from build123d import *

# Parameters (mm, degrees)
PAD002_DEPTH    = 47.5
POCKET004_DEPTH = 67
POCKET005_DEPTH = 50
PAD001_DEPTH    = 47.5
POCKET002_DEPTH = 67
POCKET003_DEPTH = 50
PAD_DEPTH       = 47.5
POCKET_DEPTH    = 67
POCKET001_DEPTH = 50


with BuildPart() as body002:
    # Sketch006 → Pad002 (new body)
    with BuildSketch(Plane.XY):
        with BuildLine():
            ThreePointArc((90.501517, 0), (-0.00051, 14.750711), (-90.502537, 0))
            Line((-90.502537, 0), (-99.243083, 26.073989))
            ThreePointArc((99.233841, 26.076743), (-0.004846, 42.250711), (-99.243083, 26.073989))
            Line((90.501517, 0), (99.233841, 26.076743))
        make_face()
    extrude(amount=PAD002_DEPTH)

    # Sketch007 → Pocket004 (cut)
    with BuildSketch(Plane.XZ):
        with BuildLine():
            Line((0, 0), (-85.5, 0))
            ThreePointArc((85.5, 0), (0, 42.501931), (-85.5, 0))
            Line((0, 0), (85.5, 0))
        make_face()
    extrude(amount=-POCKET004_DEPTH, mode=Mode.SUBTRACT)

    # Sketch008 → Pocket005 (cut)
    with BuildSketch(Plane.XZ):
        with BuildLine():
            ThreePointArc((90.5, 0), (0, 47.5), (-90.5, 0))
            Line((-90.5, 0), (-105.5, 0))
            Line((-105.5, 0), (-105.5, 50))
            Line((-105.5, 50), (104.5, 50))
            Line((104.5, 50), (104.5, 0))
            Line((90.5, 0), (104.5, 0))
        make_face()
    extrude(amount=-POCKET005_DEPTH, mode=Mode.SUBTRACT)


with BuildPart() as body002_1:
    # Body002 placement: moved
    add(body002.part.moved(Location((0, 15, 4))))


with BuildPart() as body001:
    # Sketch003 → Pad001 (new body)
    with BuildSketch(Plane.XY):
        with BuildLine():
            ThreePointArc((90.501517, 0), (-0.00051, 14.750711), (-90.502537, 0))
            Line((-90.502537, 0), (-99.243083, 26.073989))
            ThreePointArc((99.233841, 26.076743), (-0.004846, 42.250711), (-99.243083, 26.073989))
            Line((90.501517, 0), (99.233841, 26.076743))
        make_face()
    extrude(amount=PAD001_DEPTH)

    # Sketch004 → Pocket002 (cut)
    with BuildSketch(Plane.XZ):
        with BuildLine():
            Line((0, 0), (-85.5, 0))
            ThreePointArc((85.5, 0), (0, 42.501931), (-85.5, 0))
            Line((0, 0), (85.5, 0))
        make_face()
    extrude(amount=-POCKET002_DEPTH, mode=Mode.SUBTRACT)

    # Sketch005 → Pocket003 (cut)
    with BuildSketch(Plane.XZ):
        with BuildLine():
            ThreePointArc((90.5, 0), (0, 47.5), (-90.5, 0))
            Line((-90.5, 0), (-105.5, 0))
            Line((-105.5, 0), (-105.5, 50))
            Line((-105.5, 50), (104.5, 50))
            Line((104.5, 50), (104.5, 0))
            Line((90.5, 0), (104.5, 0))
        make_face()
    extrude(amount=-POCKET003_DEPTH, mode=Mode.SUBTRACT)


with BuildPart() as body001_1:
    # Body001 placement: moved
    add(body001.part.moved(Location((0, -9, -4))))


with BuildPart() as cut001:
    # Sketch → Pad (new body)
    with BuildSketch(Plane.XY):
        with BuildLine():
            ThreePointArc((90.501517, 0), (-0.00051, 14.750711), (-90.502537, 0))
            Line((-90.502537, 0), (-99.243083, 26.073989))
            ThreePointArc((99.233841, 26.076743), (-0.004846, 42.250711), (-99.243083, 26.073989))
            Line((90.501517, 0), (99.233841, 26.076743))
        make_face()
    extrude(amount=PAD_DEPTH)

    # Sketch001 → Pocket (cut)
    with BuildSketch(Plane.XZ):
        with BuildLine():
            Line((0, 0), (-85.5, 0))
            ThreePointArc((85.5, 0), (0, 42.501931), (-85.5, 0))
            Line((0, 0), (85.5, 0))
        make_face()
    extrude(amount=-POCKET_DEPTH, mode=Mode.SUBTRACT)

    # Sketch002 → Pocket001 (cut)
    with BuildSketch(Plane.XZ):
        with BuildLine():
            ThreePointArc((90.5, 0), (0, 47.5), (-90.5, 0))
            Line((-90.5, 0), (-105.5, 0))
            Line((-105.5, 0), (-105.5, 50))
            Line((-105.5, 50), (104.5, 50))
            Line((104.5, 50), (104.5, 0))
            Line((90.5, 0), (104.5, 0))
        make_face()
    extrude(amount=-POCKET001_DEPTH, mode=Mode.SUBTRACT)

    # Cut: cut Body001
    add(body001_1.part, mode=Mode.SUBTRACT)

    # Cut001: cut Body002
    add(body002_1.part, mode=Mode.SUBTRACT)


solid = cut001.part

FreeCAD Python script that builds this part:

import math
import FreeCAD as App
import Part
import Sketcher

doc = App.newDocument("Part")
body = doc.addObject("PartDesign::Body", "Body")

# Sketch on XY plane
sketch1 = doc.addObject("Sketcher::SketchObject", "Sketch")
body.addObject(sketch1)
sketch1.AttachmentSupport = (doc.XY_Plane, [""])
sketch1.MapMode = "FlatFace"
sketch1.addGeometry([
    Part.ArcOfCircle(Part.Circle(App.Vector(0, -270, 0), App.Vector(0, 0, 1), 285), math.radians(71), math.radians(109)),
    Part.LineSegment(App.Vector(91, 0, 0), App.Vector(99, 26, 0)),
    Part.ArcOfCircle(Part.Circle(App.Vector(0, -270, 0), App.Vector(0, 0, 1), 313), math.radians(71), math.radians(109)),
    Part.LineSegment(App.Vector(-99, 26, 0), App.Vector(-91, 0, 0)),
], False)
sketch1.addConstraint([
    Sketcher.Constraint("Coincident", 0, 1, 1, 1),
    Sketcher.Constraint("Coincident", 1, 2, 2, 1),
    Sketcher.Constraint("Coincident", 2, 2, 3, 1),
    Sketcher.Constraint("Coincident", 3, 2, 0, 2),
    Sketcher.Constraint("Coincident", 2, 3, 0, 3),
    Sketcher.Constraint("PointOnObject", 0, 1, -1),
    Sketcher.Constraint("PointOnObject", 3, 2, -1),
    Sketcher.Constraint("Radius", 2, 312.51),
    Sketcher.Constraint("Distance", 1, 27.5),
    Sketcher.Constraint("DistanceX", 2, 2, 0, 1, 189.7446),
    Sketcher.Constraint("DistanceX", 0, 3, -1, 1, 0.00051),
    Sketcher.Constraint("DistanceY", 0, 3, -1, 1, 270.259292),
    Sketcher.Constraint("DistanceX", -1, 1, 1, 2, 99.233841),
])
pad1 = doc.addObject("PartDesign::Pad", "Pad")
body.addObject(pad1)
pad1.Profile = sketch1
pad1.Length = 47.5

# Sketch on XZ plane
sketch2 = doc.addObject("Sketcher::SketchObject", "Sketch001")
body.addObject(sketch2)
sketch2.AttachmentSupport = (doc.XZ_Plane, [""])
sketch2.MapMode = "FlatFace"
sketch2.addGeometry([
    Part.LineSegment(App.Vector(-86, 0, 0), App.Vector(86, 0, 0)),
    Part.ArcOfCircle(Part.Circle(App.Vector(0, -65, 0), App.Vector(0, 0, 1), 107), math.radians(37), math.radians(143)),
], False)
sketch2.addConstraint([
    Sketcher.Constraint("Coincident", 0, 1, 1, 2),
    Sketcher.Constraint("Coincident", 1, 1, 0, 2),
    Sketcher.Constraint("Horizontal", 0),
    Sketcher.Constraint("Symmetric", 0, 1, 1, 1, -1, 1),
    Sketcher.Constraint("DistanceX", 0, 1, 0, 2, 171.0),
    Sketcher.Constraint("Radius", 1, 107.249999),
])
pocket1 = doc.addObject("PartDesign::Pocket", "Pocket")
body.addObject(pocket1)
pocket1.Profile = sketch2
pocket1.Length = 67

# Sketch on XZ plane
sketch3 = doc.addObject("Sketcher::SketchObject", "Sketch002")
body.addObject(sketch3)
sketch3.AttachmentSupport = (doc.XZ_Plane, [""])
sketch3.MapMode = "FlatFace"
sketch3.addGeometry([
    Part.ArcOfCircle(Part.Circle(App.Vector(0, -62, 0), App.Vector(0, 0, 1), 110), math.radians(35), math.radians(145)),  # 0
    Part.LineSegment(App.Vector(90, 0, 0), App.Vector(104, 0, 0)),  # 1
    Part.LineSegment(App.Vector(104, 0, 0), App.Vector(104, 50, 0)),  # 2
    Part.LineSegment(App.Vector(104, 50, 0), App.Vector(-106, 50, 0)),  # 3
    Part.LineSegment(App.Vector(-106, 50, 0), App.Vector(-106, 0, 0)),  # 4
    Part.LineSegment(App.Vector(-106, 0, 0), App.Vector(-90, 0, 0)),  # 5
], False)
sketch3.addConstraint([
    Sketcher.Constraint("Coincident", 0, 1, 1, 1),
    Sketcher.Constraint("Coincident", 1, 2, 2, 1),
    Sketcher.Constraint("Coincident", 2, 2, 3, 1),
    Sketcher.Constraint("Coincident", 3, 2, 4, 1),
    Sketcher.Constraint("Coincident", 4, 2, 5, 1),
    Sketcher.Constraint("Coincident", 5, 2, 0, 2),
    Sketcher.Constraint("Horizontal", 1),
    Sketcher.Constraint("Vertical", 2),
    Sketcher.Constraint("Horizontal", 3),
    Sketcher.Constraint("Vertical", 4),
    Sketcher.Constraint("Horizontal", 5),
    Sketcher.Constraint("Symmetric", 0, 1, 5, 2, -1, 1),
    Sketcher.Constraint("PointOnObject", 0, 3, -2),
    Sketcher.Constraint("DistanceX", 1, 1, 1, 2, 14.0),
    Sketcher.Constraint("DistanceX", 3, 2, 3, 1, 210.0),
    Sketcher.Constraint("DistanceX", 5, 1, 5, 2, 15.0),
    Sketcher.Constraint("DistanceY", 2, 1, 2, 2, 50.0),
    Sketcher.Constraint("Radius", 0, 109.963158),
])
pocket2 = doc.addObject("PartDesign::Pocket", "Pocket001")
body.addObject(pocket2)
pocket2.Profile = sketch3
pocket2.Length = 50
body2 = doc.addObject("PartDesign::Body", "Body001")
doc.recompute()

body.Placement = App.Placement(App.Vector(0, 15, 4), App.Rotation(App.Vector(0, 0, 1), 0))
boolean = doc.addObject("PartDesign::Boolean", "Boolean")
body2.addObject(boolean)
boolean.Type = "Fuse"
boolean.addObjects([body])
body3 = doc.addObject("PartDesign::Body", "Body002")

# Sketch on XY plane
sketch4 = doc.addObject("Sketcher::SketchObject", "Sketch003")
body3.addObject(sketch4)
sketch4.AttachmentSupport = (doc.getObject("XY_Plane002"), [""])
sketch4.MapMode = "FlatFace"
sketch4.addGeometry([
    Part.ArcOfCircle(Part.Circle(App.Vector(0, -270, 0), App.Vector(0, 0, 1), 285), math.radians(71), math.radians(109)),
    Part.LineSegment(App.Vector(91, 0, 0), App.Vector(99, 26, 0)),
    Part.ArcOfCircle(Part.Circle(App.Vector(0, -270, 0), App.Vector(0, 0, 1), 313), math.radians(71), math.radians(109)),
    Part.LineSegment(App.Vector(-99, 26, 0), App.Vector(-91, 0, 0)),
], False)
sketch4.addConstraint([
    Sketcher.Constraint("Coincident", 0, 1, 1, 1),
    Sketcher.Constraint("Coincident", 1, 2, 2, 1),
    Sketcher.Constraint("Coincident", 2, 2, 3, 1),
    Sketcher.Constraint("Coincident", 3, 2, 0, 2),
    Sketcher.Constraint("Coincident", 2, 3, 0, 3),
    Sketcher.Constraint("PointOnObject", 0, 1, -1),
    Sketcher.Constraint("PointOnObject", 3, 2, -1),
    Sketcher.Constraint("Radius", 2, 312.51),
    Sketcher.Constraint("Distance", 1, 27.5),
    Sketcher.Constraint("DistanceX", 2, 2, 0, 1, 189.7446),
    Sketcher.Constraint("DistanceX", 0, 3, -1, 1, 0.00051),
    Sketcher.Constraint("DistanceY", 0, 3, -1, 1, 270.259292),
    Sketcher.Constraint("DistanceX", -1, 1, 1, 2, 99.233841),
])
pad2 = doc.addObject("PartDesign::Pad", "Pad001")
body3.addObject(pad2)
pad2.Profile = sketch4
pad2.Length = 47.5

# Sketch on XZ plane
sketch5 = doc.addObject("Sketcher::SketchObject", "Sketch004")
body3.addObject(sketch5)
sketch5.AttachmentSupport = (doc.getObject("XZ_Plane002"), [""])
sketch5.MapMode = "FlatFace"
sketch5.addGeometry([
    Part.LineSegment(App.Vector(-86, 0, 0), App.Vector(86, 0, 0)),
    Part.ArcOfCircle(Part.Circle(App.Vector(0, -65, 0), App.Vector(0, 0, 1), 107), math.radians(37), math.radians(143)),
], False)
sketch5.addConstraint([
    Sketcher.Constraint("Coincident", 0, 1, 1, 2),
    Sketcher.Constraint("Coincident", 1, 1, 0, 2),
    Sketcher.Constraint("Horizontal", 0),
    Sketcher.Constraint("Symmetric", 0, 1, 1, 1, -1, 1),
    Sketcher.Constraint("DistanceX", 0, 1, 0, 2, 171.0),
    Sketcher.Constraint("Radius", 1, 107.249999),
])
pocket3 = doc.addObject("PartDesign::Pocket", "Pocket002")
body3.addObject(pocket3)
pocket3.Profile = sketch5
pocket3.Length = 67

# Sketch on XZ plane
sketch6 = doc.addObject("Sketcher::SketchObject", "Sketch005")
body3.addObject(sketch6)
sketch6.AttachmentSupport = (doc.getObject("XZ_Plane002"), [""])
sketch6.MapMode = "FlatFace"
sketch6.addGeometry([
    Part.ArcOfCircle(Part.Circle(App.Vector(0, -62, 0), App.Vector(0, 0, 1), 110), math.radians(35), math.radians(145)),  # 0
    Part.LineSegment(App.Vector(90, 0, 0), App.Vector(104, 0, 0)),  # 1
    Part.LineSegment(App.Vector(104, 0, 0), App.Vector(104, 50, 0)),  # 2
    Part.LineSegment(App.Vector(104, 50, 0), App.Vector(-106, 50, 0)),  # 3
    Part.LineSegment(App.Vector(-106, 50, 0), App.Vector(-106, 0, 0)),  # 4
    Part.LineSegment(App.Vector(-106, 0, 0), App.Vector(-90, 0, 0)),  # 5
], False)
sketch6.addConstraint([
    Sketcher.Constraint("Coincident", 0, 1, 1, 1),
    Sketcher.Constraint("Coincident", 1, 2, 2, 1),
    Sketcher.Constraint("Coincident", 2, 2, 3, 1),
    Sketcher.Constraint("Coincident", 3, 2, 4, 1),
    Sketcher.Constraint("Coincident", 4, 2, 5, 1),
    Sketcher.Constraint("Coincident", 5, 2, 0, 2),
    Sketcher.Constraint("Horizontal", 1),
    Sketcher.Constraint("Vertical", 2),
    Sketcher.Constraint("Horizontal", 3),
    Sketcher.Constraint("Vertical", 4),
    Sketcher.Constraint("Horizontal", 5),
    Sketcher.Constraint("Symmetric", 0, 1, 5, 2, -1, 1),
    Sketcher.Constraint("PointOnObject", 0, 3, -2),
    Sketcher.Constraint("DistanceX", 1, 1, 1, 2, 14.0),
    Sketcher.Constraint("DistanceX", 3, 2, 3, 1, 210.0),
    Sketcher.Constraint("DistanceX", 5, 1, 5, 2, 15.0),
    Sketcher.Constraint("DistanceY", 2, 1, 2, 2, 50.0),
    Sketcher.Constraint("Radius", 0, 109.963158),
])
pocket4 = doc.addObject("PartDesign::Pocket", "Pocket003")
body3.addObject(pocket4)
pocket4.Profile = sketch6
pocket4.Length = 50
body4 = doc.addObject("PartDesign::Body", "Body003")
doc.recompute()

body3.Placement = App.Placement(App.Vector(0, -9, -4), App.Rotation(App.Vector(0, 0, 1), 0))
boolean2 = doc.addObject("PartDesign::Boolean", "Boolean001")
body4.addObject(boolean2)
boolean2.Type = "Fuse"
boolean2.addObjects([body3])
body5 = doc.addObject("PartDesign::Body", "Body004")

# Sketch on XY plane
sketch7 = doc.addObject("Sketcher::SketchObject", "Sketch006")
body5.addObject(sketch7)
sketch7.AttachmentSupport = (doc.getObject("XY_Plane004"), [""])
sketch7.MapMode = "FlatFace"
sketch7.addGeometry([
    Part.ArcOfCircle(Part.Circle(App.Vector(0, -270, 0), App.Vector(0, 0, 1), 285), math.radians(71), math.radians(109)),
    Part.LineSegment(App.Vector(91, 0, 0), App.Vector(99, 26, 0)),
    Part.ArcOfCircle(Part.Circle(App.Vector(0, -270, 0), App.Vector(0, 0, 1), 313), math.radians(71), math.radians(109)),
    Part.LineSegment(App.Vector(-99, 26, 0), App.Vector(-91, 0, 0)),
], False)
sketch7.addConstraint([
    Sketcher.Constraint("Coincident", 0, 1, 1, 1),
    Sketcher.Constraint("Coincident", 1, 2, 2, 1),
    Sketcher.Constraint("Coincident", 2, 2, 3, 1),
    Sketcher.Constraint("Coincident", 3, 2, 0, 2),
    Sketcher.Constraint("Coincident", 2, 3, 0, 3),
    Sketcher.Constraint("PointOnObject", 0, 1, -1),
    Sketcher.Constraint("PointOnObject", 3, 2, -1),
    Sketcher.Constraint("Radius", 2, 312.51),
    Sketcher.Constraint("Distance", 1, 27.5),
    Sketcher.Constraint("DistanceX", 2, 2, 0, 1, 189.7446),
    Sketcher.Constraint("DistanceX", 0, 3, -1, 1, 0.00051),
    Sketcher.Constraint("DistanceY", 0, 3, -1, 1, 270.259292),
    Sketcher.Constraint("DistanceX", -1, 1, 1, 2, 99.233841),
])
pad3 = doc.addObject("PartDesign::Pad", "Pad002")
body5.addObject(pad3)
pad3.Profile = sketch7
pad3.Length = 47.5

# Sketch on XZ plane
sketch8 = doc.addObject("Sketcher::SketchObject", "Sketch007")
body5.addObject(sketch8)
sketch8.AttachmentSupport = (doc.getObject("XZ_Plane004"), [""])
sketch8.MapMode = "FlatFace"
sketch8.addGeometry([
    Part.LineSegment(App.Vector(-86, 0, 0), App.Vector(86, 0, 0)),
    Part.ArcOfCircle(Part.Circle(App.Vector(0, -65, 0), App.Vector(0, 0, 1), 107), math.radians(37), math.radians(143)),
], False)
sketch8.addConstraint([
    Sketcher.Constraint("Coincident", 0, 1, 1, 2),
    Sketcher.Constraint("Coincident", 1, 1, 0, 2),
    Sketcher.Constraint("Horizontal", 0),
    Sketcher.Constraint("Symmetric", 0, 1, 1, 1, -1, 1),
    Sketcher.Constraint("DistanceX", 0, 1, 0, 2, 171.0),
    Sketcher.Constraint("Radius", 1, 107.249999),
])
pocket5 = doc.addObject("PartDesign::Pocket", "Pocket004")
body5.addObject(pocket5)
pocket5.Profile = sketch8
pocket5.Length = 67

# Sketch on XZ plane
sketch9 = doc.addObject("Sketcher::SketchObject", "Sketch008")
body5.addObject(sketch9)
sketch9.AttachmentSupport = (doc.getObject("XZ_Plane004"), [""])
sketch9.MapMode = "FlatFace"
sketch9.addGeometry([
    Part.ArcOfCircle(Part.Circle(App.Vector(0, -62, 0), App.Vector(0, 0, 1), 110), math.radians(35), math.radians(145)),  # 0
    Part.LineSegment(App.Vector(90, 0, 0), App.Vector(104, 0, 0)),  # 1
    Part.LineSegment(App.Vector(104, 0, 0), App.Vector(104, 50, 0)),  # 2
    Part.LineSegment(App.Vector(104, 50, 0), App.Vector(-106, 50, 0)),  # 3
    Part.LineSegment(App.Vector(-106, 50, 0), App.Vector(-106, 0, 0)),  # 4
    Part.LineSegment(App.Vector(-106, 0, 0), App.Vector(-90, 0, 0)),  # 5
], False)
sketch9.addConstraint([
    Sketcher.Constraint("Coincident", 0, 1, 1, 1),
    Sketcher.Constraint("Coincident", 1, 2, 2, 1),
    Sketcher.Constraint("Coincident", 2, 2, 3, 1),
    Sketcher.Constraint("Coincident", 3, 2, 4, 1),
    Sketcher.Constraint("Coincident", 4, 2, 5, 1),
    Sketcher.Constraint("Coincident", 5, 2, 0, 2),
    Sketcher.Constraint("Horizontal", 1),
    Sketcher.Constraint("Vertical", 2),
    Sketcher.Constraint("Horizontal", 3),
    Sketcher.Constraint("Vertical", 4),
    Sketcher.Constraint("Horizontal", 5),
    Sketcher.Constraint("Symmetric", 0, 1, 5, 2, -1, 1),
    Sketcher.Constraint("PointOnObject", 0, 3, -2),
    Sketcher.Constraint("DistanceX", 1, 1, 1, 2, 14.0),
    Sketcher.Constraint("DistanceX", 3, 2, 3, 1, 210.0),
    Sketcher.Constraint("DistanceX", 5, 1, 5, 2, 15.0),
    Sketcher.Constraint("DistanceY", 2, 1, 2, 2, 50.0),
    Sketcher.Constraint("Radius", 0, 109.963158),
])
pocket6 = doc.addObject("PartDesign::Pocket", "Pocket005")
body5.addObject(pocket6)
pocket6.Profile = sketch9
pocket6.Length = 50
doc.recompute()

boolean3 = doc.addObject("PartDesign::Boolean", "Boolean002")
body5.addObject(boolean3)
boolean3.Type = "Cut"
boolean3.addObjects([body4])
doc.recompute()

boolean4 = doc.addObject("PartDesign::Boolean", "Boolean003")
body5.addObject(boolean4)
boolean4.Type = "Cut"
boolean4.addObjects([body2])

doc.recompute()
